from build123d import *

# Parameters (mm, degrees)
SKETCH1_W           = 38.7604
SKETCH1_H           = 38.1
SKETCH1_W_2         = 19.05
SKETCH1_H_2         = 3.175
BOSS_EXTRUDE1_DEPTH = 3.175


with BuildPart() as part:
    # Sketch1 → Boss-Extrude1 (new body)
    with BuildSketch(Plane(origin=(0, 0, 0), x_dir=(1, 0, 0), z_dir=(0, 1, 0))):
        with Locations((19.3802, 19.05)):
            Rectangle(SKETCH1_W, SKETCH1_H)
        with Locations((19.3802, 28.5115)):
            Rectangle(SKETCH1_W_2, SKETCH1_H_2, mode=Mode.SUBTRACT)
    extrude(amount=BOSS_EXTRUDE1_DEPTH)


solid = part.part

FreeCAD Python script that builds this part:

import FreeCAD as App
import Part
import Sketcher

V = App.Vector
Q = App.Units.Quantity

doc = App.newDocument("Part")
body = doc.addObject("PartDesign::Body", "Body")

sketch1 = body.newObject("Sketcher::SketchObject", "Sketch")
sketch1.AttachmentSupport = (doc.getObject("XZ_Plane"), [""])
sketch1.MapMode = "FlatFace"
sketch1.addGeometry([
    Part.LineSegment(V(0, -38.1, 0), V(0, 0, 0)),
    Part.LineSegment(V(0, 0, 0), V(38.7604, 0, 0)),
    Part.LineSegment(V(38.7604, 0, 0), V(38.7604, -38.1, 0)),
    Part.LineSegment(V(38.7604, -38.1, 0), V(0, -38.1, 0)),
    Part.LineSegment(V(28.9052, -26.924, 0), V(9.8552, -26.924, 0)),
    Part.LineSegment(V(9.8552, -26.924, 0), V(9.8552, -30.099, 0)),
    Part.LineSegment(V(9.8552, -30.099, 0), V(28.9052, -30.099, 0)),
    Part.LineSegment(V(28.9052, -30.099, 0), V(28.9052, -26.924, 0)),
], False)
sketch1.addConstraint([
    Sketcher.Constraint("Coincident", 0, 2, 1, 1),
    Sketcher.Constraint("Coincident", 1, 2, 2, 1),
    Sketcher.Constraint("Coincident", 2, 2, 3, 1),
    Sketcher.Constraint("Coincident", 3, 2, 0, 1),
    Sketcher.Constraint("Coincident", 4, 2, 5, 1),
    Sketcher.Constraint("Coincident", 5, 2, 6, 1),
    Sketcher.Constraint("Coincident", 6, 2, 7, 1),
    Sketcher.Constraint("Coincident", 7, 2, 4, 1),
    Sketcher.Constraint("Vertical", 0),
    Sketcher.Constraint("Horizontal", 1),
    Sketcher.Constraint("Vertical", 2),
    Sketcher.Constraint("Horizontal", 3),
    Sketcher.Constraint("Horizontal", 4),
    Sketcher.Constraint("Vertical", 5),
    Sketcher.Constraint("Horizontal", 6),
    Sketcher.Constraint("Vertical", 7),
    Sketcher.Constraint("Coincident", 0, 2, -1, 1),
    Sketcher.Constraint("DistanceY", 0, 1, 0, 2, Q("1.5 in")),
    Sketcher.Constraint("DistanceX", 4, 2, 4, 1, Q("0.75 in")),
    Sketcher.Constraint("DistanceX", 1, 1, 1, 2, Q("1.526 in")),
    Sketcher.Constraint("DistanceY", 5, 2, 5, 1, Q("0.125 in")),
    Sketcher.Constraint("DistanceY", 4, 2, -1, 1, Q("1.06 in")),
    Sketcher.Constraint("DistanceX", -1, 1, 4, 2, Q("0.388 in")),
])
pad1 = body.newObject("PartDesign::Pad", "Pad")
pad1.Profile = sketch1
pad1.Length = Q("0.125 in")
pad1.Reversed = True

doc.recompute()
